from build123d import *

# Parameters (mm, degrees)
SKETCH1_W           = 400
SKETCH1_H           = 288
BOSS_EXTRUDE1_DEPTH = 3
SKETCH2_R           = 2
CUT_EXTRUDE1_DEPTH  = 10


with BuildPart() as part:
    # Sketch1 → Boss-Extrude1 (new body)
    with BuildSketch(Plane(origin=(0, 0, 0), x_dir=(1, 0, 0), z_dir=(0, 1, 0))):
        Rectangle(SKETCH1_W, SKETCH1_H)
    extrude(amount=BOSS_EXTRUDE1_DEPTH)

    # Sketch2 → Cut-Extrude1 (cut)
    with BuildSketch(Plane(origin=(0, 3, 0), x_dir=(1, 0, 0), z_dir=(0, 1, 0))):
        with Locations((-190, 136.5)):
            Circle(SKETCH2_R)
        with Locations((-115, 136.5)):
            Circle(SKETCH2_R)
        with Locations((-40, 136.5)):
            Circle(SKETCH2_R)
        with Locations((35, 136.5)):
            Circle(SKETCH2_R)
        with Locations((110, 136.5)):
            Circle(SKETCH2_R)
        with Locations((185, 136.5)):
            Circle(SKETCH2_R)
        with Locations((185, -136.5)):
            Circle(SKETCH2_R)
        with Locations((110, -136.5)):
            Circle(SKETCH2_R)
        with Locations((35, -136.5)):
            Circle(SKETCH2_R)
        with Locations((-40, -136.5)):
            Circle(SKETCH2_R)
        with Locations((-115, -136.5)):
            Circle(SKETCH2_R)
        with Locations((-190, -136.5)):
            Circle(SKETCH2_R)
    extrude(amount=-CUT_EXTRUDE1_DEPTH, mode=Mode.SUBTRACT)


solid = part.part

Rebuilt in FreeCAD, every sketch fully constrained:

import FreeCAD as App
import Part
import Sketcher
Q = App.Units.Quantity

doc = App.newDocument("Part")
params = doc.addObject("Spreadsheet::Sheet", "Params")
for row, (alias, value) in enumerate([
    ("sketch1_width", "400 mm"),
    ("sketch1_height", "288 mm"),
    ("pad1_length", "3 mm"),
    ("sketch2_diameter", "4 mm"),
    ("pocket1_length", "10 mm"),
], start=1):
    params.set(f"A{row}", alias)
    params.set(f"B{row}", "=" + value)
    params.setAlias(f"B{row}", alias)

body = doc.addObject("PartDesign::Body", "Body")

# Sketch on XZ plane
sketch1 = body.newObject("Sketcher::SketchObject", "Sketch")
sketch1.AttachmentSupport = (doc.getObject("XZ_Plane"), [""])
sketch1.MapMode = "FlatFace"
sketch1.addGeometry([
    Part.LineSegment(App.Vector(-200, -144, 0), App.Vector(-200, 144, 0)),
    Part.LineSegment(App.Vector(-200, 144, 0), App.Vector(200, 144, 0)),
    Part.LineSegment(App.Vector(200, 144, 0), App.Vector(200, -144, 0)),
    Part.LineSegment(App.Vector(200, -144, 0), App.Vector(-200, -144, 0)),
], False)
sketch1.addConstraint([
    Sketcher.Constraint("Coincident", 0, 2, 1, 1),
    Sketcher.Constraint("Coincident", 1, 2, 2, 1),
    Sketcher.Constraint("Coincident", 2, 2, 3, 1),
    Sketcher.Constraint("Coincident", 3, 2, 0, 1),
    Sketcher.Constraint("Vertical", 0),
    Sketcher.Constraint("Horizontal", 1),
    Sketcher.Constraint("Vertical", 2),
    Sketcher.Constraint("Horizontal", 3),
    Sketcher.Constraint("Symmetric", 0, 2, 2, 2, -1, 1),
    Sketcher.Constraint("DistanceX", 1, 1, 1, 2, Q("400 mm")),
    Sketcher.Constraint("DistanceY", 0, 1, 0, 2, Q("288 mm")),
])
sketch1.setExpression("Constraints[9]", "Params.sketch1_width")
sketch1.setExpression("Constraints[10]", "Params.sketch1_height")
pad1 = body.newObject("PartDesign::Pad", "Pad")
pad1.Profile = sketch1
pad1.setExpression("Length", "Params.pad1_length")
pad1.Reversed = True

# Sketch on XZ plane
sketch2 = body.newObject("Sketcher::SketchObject", "Sketch001")
sketch2.AttachmentSupport = (doc.getObject("XZ_Plane"), [""])
sketch2.MapMode = "FlatFace"
sketch2.AttachmentOffset = App.Placement(App.Vector(0, 0, -3), App.Rotation())
sketch2.addGeometry([
    Part.Circle(App.Vector(-190, -136.5, 0), App.Vector(0, 0, 1), 2),  # 0
    Part.Circle(App.Vector(-115, -136.5, 0), App.Vector(0, 0, 1), 2),  # 1
    Part.Circle(App.Vector(-40, -136.5, 0), App.Vector(0, 0, 1), 2),  # 2
    Part.Circle(App.Vector(35, -136.5, 0), App.Vector(0, 0, 1), 2),  # 3
    Part.Circle(App.Vector(110, -136.5, 0), App.Vector(0, 0, 1), 2),  # 4
    Part.Circle(App.Vector(185, -136.5, 0), App.Vector(0, 0, 1), 2),  # 5
    Part.Circle(App.Vector(185, 136.5, 0), App.Vector(0, 0, 1), 2),  # 6
    Part.Circle(App.Vector(110, 136.5, 0), App.Vector(0, 0, 1), 2),  # 7
    Part.Circle(App.Vector(35, 136.5, 0), App.Vector(0, 0, 1), 2),  # 8
    Part.Circle(App.Vector(-40, 136.5, 0), App.Vector(0, 0, 1), 2),  # 9
    Part.Circle(App.Vector(-115, 136.5, 0), App.Vector(0, 0, 1), 2),  # 10
    Part.Circle(App.Vector(-190, 136.5, 0), App.Vector(0, 0, 1), 2),  # 11
], False)
sketch2.addConstraint([
    Sketcher.Constraint("Equal", 0, 1),
    Sketcher.Constraint("Equal", 1, 2),
    Sketcher.Constraint("Equal", 2, 3),
    Sketcher.Constraint("Equal", 3, 4),
    Sketcher.Constraint("Equal", 4, 5),
    Sketcher.Constraint("Equal", 5, 6),
    Sketcher.Constraint("Equal", 6, 7),
    Sketcher.Constraint("Equal", 7, 8),
    Sketcher.Constraint("Equal", 8, 9),
    Sketcher.Constraint("Equal", 9, 10),
    Sketcher.Constraint("Equal", 10, 11),
    Sketcher.Constraint("Symmetric", 5, 3, 6, 3, -1),
    Sketcher.Constraint("Symmetric", 4, 3, 7, 3, -1),
    Sketcher.Constraint("Symmetric", 3, 3, 8, 3, -1),
    Sketcher.Constraint("Symmetric", 2, 3, 9, 3, -1),
    Sketcher.Constraint("Symmetric", 1, 3, 10, 3, -1),
    Sketcher.Constraint("Symmetric", 0, 3, 11, 3, -1),
    Sketcher.Constraint("Horizontal", 0, 3, 1, 3),
    Sketcher.Constraint("Horizontal", 1, 3, 2, 3),
    Sketcher.Constraint("Horizontal", 2, 3, 3, 3),
    Sketcher.Constraint("Horizontal", 3, 3, 4, 3),
    Sketcher.Constraint("Horizontal", 4, 3, 5, 3),
    Sketcher.Constraint("Diameter", 0, Q("4 mm")),
    Sketcher.Constraint("DistanceX", 0, 3, -1, 1, Q("190 mm")),
    Sketcher.Constraint("DistanceX", 1, 3, -1, 1, Q("115 mm")),
    Sketcher.Constraint("DistanceX", 2, 3, -1, 1, Q("40 mm")),
    Sketcher.Constraint("DistanceX", -1, 1, 3, 3, Q("35 mm")),
    Sketcher.Constraint("DistanceX", -1, 1, 4, 3, Q("110 mm")),
    Sketcher.Constraint("DistanceX", -1, 1, 5, 3, Q("185 mm")),
    Sketcher.Constraint("DistanceY", 5, 3, 6, 3, Q("273 mm")),
])
sketch2.setExpression("Constraints[22]", "Params.sketch2_diameter")
pocket1 = body.newObject("PartDesign::Pocket", "Pocket")
pocket1.Profile = sketch2
pocket1.setExpression("Length", "Params.pocket1_length")
pocket1.Reversed = True

doc.recompute()
